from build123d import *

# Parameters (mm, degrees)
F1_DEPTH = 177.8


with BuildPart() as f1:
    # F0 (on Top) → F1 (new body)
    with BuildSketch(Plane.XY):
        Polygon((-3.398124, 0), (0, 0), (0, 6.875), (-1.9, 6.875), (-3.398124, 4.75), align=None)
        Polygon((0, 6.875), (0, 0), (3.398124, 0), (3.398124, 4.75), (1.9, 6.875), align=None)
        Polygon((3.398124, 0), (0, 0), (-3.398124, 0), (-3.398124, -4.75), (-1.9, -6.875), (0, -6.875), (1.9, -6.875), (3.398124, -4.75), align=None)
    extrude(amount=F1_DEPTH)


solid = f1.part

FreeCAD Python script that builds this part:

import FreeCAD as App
import Part
import Sketcher

doc = App.newDocument("Part")
params = doc.addObject("Spreadsheet::Sheet", "Params")
for row, (alias, value) in enumerate([
    ("sketch1_width", "3.8 mm"),
    ("sketch1_height", "9.5 mm"),
    ("sketch1_length", "2.6 mm"),
    ("pad1_length", "177.8 mm"),
], start=1):
    params.set(f"A{row}", alias)
    params.set(f"B{row}", "=" + value)
    params.setAlias(f"B{row}", alias)

body = doc.addObject("PartDesign::Body", "Body")

sketch1 = body.newObject("Sketcher::SketchObject", "Sketch")
sketch1.AttachmentSupport = (doc.getObject("XY_Plane"), [""])
sketch1.MapMode = "FlatFace"
sketch1.addGeometry(Part.LineSegment(App.Vector(3.4, 4.8, 0), App.Vector(1.9, 6.9, 0)), False)
sketch1.addGeometry(Part.LineSegment(App.Vector(1.9, 6.9, 0), App.Vector(-1.9, 6.9, 0)), False)
sketch1.addGeometry(Part.LineSegment(App.Vector(-1.9, 6.9, 0), App.Vector(-3.4, 4.8, 0)), False)
sketch1.addGeometry(Part.LineSegment(App.Vector(-3.4, 4.8, 0), App.Vector(-3.4, -4.8, 0)), False)
sketch1.addGeometry(Part.LineSegment(App.Vector(-3.4, -4.8, 0), App.Vector(-1.9, -6.9, 0)), False)
sketch1.addGeometry(Part.LineSegment(App.Vector(-1.9, -6.9, 0), App.Vector(1.9, -6.9, 0)), False)
sketch1.addGeometry(Part.LineSegment(App.Vector(1.9, -6.9, 0), App.Vector(3.4, -4.8, 0)), False)
sketch1.addGeometry(Part.LineSegment(App.Vector(3.4, -4.8, 0), App.Vector(3.4, 4.8, 0)), False)
sketch1.addConstraint(Sketcher.Constraint("Coincident", 0, 2, 1, 1))
sketch1.addConstraint(Sketcher.Constraint("Coincident", 1, 2, 2, 1))
sketch1.addConstraint(Sketcher.Constraint("Coincident", 2, 2, 3, 1))
sketch1.addConstraint(Sketcher.Constraint("Coincident", 3, 2, 4, 1))
sketch1.addConstraint(Sketcher.Constraint("Coincident", 4, 2, 5, 1))
sketch1.addConstraint(Sketcher.Constraint("Coincident", 5, 2, 6, 1))
sketch1.addConstraint(Sketcher.Constraint("Coincident", 6, 2, 7, 1))
sketch1.addConstraint(Sketcher.Constraint("Coincident", 7, 2, 0, 1))
sketch1.addConstraint(Sketcher.Constraint("Horizontal", 1))
sketch1.addConstraint(Sketcher.Constraint("Vertical", 3))
sketch1.addConstraint(Sketcher.Constraint("Horizontal", 5))
sketch1.addConstraint(Sketcher.Constraint("Vertical", 7))
sketch1.addConstraint(Sketcher.Constraint("Symmetric", 0, 2, 4, 2, -1, 1))
sketch1.addConstraint(Sketcher.Constraint("Symmetric", 2, 2, 6, 2, -1, 1))
sketch1.addConstraint(Sketcher.Constraint("Parallel", 0, 4))
sketch1.addConstraint(Sketcher.Constraint("Parallel", 2, 6))
sketch1.addConstraint(Sketcher.Constraint("Horizontal", 3, 2, 6, 2))
sketch1.addConstraint(Sketcher.Constraint("Vertical", 1, 2, 4, 2))
sketch1.addConstraint(Sketcher.Constraint("DistanceX", 1, 2, 1, 1, 3.8))
sketch1.addConstraint(Sketcher.Constraint("DistanceY", 3, 2, 3, 1, 9.5))
sketch1.addConstraint(Sketcher.Constraint("Distance", 0, 2.6))
sketch1.addConstraint(Sketcher.Constraint("DistanceY", 4, 2, 1, 2, 13.75))
sketch1.setExpression("Constraints[18]", "Params.sketch1_width")
sketch1.setExpression("Constraints[19]", "Params.sketch1_height")
sketch1.setExpression("Constraints[20]", "Params.sketch1_length")
pad1 = body.newObject("PartDesign::Pad", "Pad")
pad1.Profile = sketch1
pad1.setExpression("Length", "Params.pad1_length")

doc.recompute()
